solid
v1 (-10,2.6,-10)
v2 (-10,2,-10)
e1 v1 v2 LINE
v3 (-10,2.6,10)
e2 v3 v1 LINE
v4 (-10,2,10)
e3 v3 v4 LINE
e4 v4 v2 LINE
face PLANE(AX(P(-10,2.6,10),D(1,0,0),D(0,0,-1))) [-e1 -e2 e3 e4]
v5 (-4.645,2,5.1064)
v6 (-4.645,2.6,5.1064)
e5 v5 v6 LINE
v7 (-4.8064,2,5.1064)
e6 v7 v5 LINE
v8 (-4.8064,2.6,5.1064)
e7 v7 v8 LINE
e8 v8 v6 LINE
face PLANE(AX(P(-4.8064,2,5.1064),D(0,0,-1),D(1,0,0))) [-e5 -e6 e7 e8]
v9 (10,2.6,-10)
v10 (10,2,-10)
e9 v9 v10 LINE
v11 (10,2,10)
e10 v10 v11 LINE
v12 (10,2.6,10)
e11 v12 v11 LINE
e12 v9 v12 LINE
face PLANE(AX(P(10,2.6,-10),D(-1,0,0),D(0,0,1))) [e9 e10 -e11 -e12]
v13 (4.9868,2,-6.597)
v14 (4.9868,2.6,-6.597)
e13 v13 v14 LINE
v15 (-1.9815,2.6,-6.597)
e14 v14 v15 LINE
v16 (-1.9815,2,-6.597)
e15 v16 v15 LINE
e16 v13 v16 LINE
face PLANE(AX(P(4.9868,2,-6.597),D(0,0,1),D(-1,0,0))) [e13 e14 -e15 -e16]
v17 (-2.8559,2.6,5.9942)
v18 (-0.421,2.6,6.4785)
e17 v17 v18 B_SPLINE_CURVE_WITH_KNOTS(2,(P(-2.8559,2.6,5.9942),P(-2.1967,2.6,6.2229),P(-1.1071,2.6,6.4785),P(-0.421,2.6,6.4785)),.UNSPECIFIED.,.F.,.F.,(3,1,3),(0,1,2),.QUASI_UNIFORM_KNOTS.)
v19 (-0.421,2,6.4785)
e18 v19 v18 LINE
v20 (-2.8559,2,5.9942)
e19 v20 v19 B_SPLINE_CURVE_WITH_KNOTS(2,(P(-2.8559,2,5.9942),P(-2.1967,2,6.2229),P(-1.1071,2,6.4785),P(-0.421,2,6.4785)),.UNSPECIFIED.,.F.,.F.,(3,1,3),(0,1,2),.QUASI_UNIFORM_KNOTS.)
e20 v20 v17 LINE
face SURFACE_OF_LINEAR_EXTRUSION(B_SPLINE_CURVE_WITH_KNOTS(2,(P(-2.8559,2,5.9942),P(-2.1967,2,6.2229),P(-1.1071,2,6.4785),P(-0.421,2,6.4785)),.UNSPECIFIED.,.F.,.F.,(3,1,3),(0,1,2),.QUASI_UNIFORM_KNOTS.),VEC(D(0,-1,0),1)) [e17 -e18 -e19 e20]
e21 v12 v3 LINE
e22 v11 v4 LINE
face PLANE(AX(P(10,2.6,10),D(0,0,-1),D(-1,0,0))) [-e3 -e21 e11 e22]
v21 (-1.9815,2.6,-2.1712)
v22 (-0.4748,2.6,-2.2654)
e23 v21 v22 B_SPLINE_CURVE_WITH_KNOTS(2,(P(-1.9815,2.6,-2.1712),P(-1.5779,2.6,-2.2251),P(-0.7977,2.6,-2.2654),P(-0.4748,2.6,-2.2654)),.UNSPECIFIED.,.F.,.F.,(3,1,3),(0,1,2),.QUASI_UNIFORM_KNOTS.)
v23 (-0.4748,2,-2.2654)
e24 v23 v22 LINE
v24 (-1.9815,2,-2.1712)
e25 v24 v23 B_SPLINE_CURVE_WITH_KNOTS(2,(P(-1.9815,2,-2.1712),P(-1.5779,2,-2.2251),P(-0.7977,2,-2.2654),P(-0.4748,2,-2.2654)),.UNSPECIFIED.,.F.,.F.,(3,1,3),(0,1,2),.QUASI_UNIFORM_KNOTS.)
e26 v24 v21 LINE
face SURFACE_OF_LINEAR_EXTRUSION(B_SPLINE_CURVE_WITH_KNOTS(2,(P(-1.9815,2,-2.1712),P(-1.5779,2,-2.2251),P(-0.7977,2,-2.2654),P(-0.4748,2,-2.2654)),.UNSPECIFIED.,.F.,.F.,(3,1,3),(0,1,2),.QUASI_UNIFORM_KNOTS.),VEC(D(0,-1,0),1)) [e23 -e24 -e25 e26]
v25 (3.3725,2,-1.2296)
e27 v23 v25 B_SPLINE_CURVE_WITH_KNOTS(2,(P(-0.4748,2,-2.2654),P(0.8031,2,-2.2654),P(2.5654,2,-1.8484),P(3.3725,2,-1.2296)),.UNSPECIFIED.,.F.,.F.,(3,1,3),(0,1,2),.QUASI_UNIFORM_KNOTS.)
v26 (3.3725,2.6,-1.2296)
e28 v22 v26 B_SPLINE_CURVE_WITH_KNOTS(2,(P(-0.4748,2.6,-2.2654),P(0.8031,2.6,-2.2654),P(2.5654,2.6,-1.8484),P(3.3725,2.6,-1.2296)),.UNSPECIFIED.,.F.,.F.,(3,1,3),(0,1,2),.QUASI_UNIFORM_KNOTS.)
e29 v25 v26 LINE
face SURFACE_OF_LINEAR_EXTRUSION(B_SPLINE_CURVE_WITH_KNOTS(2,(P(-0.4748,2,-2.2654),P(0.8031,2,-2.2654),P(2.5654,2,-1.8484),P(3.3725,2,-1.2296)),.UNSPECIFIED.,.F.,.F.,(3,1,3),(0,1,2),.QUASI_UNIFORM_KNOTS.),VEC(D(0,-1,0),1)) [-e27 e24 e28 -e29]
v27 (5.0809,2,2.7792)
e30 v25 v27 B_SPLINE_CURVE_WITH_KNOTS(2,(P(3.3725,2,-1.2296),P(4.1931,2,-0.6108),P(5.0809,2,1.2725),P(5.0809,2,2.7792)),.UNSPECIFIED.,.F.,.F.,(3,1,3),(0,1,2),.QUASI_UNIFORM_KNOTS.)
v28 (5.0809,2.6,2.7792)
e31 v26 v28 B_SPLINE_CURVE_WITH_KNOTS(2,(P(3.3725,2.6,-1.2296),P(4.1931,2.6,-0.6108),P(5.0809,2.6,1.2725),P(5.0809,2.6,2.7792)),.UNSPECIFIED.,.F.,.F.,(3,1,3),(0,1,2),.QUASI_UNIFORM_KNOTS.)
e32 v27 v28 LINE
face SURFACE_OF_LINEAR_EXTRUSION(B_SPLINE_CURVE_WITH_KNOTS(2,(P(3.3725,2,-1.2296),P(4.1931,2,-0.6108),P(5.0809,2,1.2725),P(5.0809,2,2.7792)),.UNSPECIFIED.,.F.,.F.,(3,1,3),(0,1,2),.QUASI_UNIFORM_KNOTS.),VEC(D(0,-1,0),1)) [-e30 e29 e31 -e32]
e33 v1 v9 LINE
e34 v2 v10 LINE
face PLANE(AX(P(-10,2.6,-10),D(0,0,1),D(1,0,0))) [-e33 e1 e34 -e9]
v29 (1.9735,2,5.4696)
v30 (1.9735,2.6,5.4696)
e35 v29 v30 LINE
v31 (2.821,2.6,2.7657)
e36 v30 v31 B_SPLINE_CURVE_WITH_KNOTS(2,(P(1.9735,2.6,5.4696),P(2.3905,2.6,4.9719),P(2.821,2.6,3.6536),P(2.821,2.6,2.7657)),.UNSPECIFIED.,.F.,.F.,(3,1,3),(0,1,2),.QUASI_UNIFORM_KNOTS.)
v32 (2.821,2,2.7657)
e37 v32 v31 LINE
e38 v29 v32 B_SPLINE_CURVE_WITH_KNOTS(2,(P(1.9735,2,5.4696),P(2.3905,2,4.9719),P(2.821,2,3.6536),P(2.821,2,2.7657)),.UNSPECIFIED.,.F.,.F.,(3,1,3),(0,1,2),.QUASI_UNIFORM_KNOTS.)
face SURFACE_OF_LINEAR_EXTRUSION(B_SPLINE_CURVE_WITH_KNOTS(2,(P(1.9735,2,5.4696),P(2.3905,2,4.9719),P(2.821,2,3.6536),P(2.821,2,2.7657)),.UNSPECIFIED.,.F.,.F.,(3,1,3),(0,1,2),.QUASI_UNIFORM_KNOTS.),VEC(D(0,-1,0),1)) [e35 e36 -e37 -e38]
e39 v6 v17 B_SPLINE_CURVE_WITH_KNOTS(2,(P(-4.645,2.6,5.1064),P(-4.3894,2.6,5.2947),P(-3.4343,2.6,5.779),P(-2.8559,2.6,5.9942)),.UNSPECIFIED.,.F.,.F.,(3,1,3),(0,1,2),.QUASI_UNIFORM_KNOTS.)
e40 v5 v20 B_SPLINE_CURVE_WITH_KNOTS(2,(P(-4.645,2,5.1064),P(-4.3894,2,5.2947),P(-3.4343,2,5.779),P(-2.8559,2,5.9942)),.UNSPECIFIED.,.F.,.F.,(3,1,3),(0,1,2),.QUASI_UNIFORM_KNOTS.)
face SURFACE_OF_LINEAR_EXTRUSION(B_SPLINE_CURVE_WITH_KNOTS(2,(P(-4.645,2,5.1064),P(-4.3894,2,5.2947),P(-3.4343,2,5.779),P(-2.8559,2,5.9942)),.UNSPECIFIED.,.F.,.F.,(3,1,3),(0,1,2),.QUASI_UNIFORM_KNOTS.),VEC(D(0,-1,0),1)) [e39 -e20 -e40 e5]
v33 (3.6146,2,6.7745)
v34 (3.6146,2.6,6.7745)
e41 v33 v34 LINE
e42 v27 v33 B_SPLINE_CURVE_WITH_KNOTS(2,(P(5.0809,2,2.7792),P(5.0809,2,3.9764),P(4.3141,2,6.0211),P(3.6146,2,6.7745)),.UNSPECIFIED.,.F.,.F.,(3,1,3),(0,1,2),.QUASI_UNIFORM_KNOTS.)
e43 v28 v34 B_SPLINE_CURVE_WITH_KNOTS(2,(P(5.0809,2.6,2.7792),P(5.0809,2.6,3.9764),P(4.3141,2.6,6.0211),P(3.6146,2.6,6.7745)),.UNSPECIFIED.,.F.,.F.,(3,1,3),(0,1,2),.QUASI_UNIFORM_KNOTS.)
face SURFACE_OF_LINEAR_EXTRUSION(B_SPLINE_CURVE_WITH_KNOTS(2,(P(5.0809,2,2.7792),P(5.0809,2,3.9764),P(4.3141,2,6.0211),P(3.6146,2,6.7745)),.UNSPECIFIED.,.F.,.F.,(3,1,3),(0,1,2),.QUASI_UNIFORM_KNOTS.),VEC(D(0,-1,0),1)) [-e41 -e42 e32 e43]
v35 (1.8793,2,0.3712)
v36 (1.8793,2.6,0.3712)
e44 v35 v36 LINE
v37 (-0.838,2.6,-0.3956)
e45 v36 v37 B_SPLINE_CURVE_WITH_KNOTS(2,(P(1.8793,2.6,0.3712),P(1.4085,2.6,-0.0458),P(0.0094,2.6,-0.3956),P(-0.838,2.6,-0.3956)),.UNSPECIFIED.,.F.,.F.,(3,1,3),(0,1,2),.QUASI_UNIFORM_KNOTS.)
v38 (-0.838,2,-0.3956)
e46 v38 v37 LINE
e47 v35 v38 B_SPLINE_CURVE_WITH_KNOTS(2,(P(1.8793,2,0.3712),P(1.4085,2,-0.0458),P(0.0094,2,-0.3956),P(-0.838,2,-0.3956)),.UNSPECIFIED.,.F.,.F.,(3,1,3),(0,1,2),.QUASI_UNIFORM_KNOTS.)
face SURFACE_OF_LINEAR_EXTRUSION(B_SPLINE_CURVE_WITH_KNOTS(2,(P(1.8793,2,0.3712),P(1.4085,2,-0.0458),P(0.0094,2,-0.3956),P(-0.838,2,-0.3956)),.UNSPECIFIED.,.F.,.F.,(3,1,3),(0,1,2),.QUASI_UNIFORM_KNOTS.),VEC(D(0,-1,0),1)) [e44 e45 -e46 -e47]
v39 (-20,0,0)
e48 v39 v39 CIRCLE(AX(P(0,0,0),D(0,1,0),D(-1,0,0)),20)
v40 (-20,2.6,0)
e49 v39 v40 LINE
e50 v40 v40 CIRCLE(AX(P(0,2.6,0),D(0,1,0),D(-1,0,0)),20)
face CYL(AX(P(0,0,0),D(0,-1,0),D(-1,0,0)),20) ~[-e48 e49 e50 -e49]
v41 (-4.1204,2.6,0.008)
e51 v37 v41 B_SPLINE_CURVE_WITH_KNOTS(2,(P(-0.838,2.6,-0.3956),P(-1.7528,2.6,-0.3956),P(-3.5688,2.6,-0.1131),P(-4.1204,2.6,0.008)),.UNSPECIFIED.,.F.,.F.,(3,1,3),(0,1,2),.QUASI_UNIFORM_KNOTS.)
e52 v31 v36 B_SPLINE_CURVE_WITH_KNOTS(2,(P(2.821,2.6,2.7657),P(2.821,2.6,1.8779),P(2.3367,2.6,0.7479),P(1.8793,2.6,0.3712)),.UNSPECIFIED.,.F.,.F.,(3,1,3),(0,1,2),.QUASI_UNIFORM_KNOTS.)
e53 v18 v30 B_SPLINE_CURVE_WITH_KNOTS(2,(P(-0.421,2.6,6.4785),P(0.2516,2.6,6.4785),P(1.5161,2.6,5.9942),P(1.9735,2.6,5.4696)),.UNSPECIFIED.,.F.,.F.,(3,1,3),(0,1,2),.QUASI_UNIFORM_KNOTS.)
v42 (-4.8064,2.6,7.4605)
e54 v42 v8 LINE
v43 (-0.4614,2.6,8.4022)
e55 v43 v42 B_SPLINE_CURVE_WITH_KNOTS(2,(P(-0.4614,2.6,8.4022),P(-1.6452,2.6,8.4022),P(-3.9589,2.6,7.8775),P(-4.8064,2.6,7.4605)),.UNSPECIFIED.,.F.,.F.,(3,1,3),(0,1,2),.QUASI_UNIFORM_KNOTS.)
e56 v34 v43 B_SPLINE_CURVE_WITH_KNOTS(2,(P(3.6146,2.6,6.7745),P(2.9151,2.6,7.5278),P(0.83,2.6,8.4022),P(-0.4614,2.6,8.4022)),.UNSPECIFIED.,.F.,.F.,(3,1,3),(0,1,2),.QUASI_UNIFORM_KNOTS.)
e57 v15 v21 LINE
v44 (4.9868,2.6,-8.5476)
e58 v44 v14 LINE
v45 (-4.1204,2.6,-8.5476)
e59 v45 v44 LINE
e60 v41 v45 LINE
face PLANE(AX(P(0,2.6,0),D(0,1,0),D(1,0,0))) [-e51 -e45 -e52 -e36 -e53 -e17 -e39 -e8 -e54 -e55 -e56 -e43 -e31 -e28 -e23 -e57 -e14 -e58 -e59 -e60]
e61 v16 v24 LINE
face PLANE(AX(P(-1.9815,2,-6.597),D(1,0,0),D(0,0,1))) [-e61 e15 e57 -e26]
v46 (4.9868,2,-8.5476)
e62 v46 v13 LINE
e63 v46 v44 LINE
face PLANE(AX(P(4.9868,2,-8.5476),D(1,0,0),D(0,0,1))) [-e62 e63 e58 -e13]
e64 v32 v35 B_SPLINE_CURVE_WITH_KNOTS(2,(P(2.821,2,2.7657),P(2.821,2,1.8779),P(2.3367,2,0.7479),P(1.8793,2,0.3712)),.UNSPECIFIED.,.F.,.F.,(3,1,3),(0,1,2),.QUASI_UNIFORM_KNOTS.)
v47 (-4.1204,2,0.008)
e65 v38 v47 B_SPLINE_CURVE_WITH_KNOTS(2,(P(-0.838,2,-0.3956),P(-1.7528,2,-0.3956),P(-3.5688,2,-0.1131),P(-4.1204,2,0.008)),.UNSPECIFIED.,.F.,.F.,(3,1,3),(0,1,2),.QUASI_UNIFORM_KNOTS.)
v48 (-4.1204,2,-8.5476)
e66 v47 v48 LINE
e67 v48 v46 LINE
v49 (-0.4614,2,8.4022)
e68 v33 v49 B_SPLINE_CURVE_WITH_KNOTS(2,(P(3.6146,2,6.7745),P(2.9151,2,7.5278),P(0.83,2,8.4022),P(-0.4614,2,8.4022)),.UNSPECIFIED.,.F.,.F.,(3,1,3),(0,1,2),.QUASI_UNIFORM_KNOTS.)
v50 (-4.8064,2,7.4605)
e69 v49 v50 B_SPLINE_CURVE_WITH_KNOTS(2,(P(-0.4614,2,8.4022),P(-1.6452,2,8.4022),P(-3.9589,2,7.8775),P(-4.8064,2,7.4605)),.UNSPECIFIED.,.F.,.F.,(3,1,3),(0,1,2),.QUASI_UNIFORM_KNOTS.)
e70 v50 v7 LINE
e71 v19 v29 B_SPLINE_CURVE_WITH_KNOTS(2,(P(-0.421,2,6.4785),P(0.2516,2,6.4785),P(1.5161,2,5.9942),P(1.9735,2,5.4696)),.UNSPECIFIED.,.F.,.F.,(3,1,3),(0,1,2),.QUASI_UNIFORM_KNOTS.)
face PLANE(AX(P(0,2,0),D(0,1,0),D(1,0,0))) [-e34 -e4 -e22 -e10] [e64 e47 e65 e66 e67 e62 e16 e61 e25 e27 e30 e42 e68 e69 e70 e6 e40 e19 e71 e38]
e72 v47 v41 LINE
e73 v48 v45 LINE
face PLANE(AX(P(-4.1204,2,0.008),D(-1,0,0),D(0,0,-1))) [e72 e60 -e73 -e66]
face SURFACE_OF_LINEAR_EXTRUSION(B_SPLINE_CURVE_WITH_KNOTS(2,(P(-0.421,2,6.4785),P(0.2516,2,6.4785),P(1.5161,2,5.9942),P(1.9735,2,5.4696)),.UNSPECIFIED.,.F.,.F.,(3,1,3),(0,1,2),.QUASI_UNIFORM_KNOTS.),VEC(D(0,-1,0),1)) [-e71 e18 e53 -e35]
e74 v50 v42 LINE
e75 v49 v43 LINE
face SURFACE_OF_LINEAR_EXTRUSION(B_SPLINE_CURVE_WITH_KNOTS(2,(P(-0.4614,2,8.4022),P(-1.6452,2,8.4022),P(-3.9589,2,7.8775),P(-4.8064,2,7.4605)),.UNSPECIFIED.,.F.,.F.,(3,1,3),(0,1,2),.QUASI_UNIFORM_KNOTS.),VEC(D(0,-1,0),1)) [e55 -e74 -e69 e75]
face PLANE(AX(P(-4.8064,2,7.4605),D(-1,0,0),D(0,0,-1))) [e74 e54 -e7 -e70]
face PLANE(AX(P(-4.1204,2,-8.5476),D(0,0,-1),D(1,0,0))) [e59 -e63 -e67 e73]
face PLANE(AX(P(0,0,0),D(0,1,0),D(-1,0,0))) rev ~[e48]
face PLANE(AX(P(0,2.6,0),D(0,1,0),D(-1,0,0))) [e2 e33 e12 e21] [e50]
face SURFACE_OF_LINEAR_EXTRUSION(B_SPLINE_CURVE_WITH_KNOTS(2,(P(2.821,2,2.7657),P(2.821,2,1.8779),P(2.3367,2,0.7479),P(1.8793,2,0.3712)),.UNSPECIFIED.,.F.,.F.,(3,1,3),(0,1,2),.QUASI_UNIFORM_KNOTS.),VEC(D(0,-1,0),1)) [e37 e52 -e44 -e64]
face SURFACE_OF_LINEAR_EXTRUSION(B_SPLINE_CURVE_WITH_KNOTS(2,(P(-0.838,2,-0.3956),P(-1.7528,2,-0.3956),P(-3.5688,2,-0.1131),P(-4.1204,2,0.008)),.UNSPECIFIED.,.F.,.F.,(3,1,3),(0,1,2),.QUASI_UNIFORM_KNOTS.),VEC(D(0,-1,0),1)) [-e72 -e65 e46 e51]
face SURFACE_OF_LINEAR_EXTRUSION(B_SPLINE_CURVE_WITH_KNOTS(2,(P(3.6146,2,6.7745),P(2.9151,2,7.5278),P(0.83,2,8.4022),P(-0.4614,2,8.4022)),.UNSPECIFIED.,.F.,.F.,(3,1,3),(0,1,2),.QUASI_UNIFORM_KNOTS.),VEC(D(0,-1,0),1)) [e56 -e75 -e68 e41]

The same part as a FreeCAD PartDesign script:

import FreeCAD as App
import Part
import Sketcher


def add_polygon(sketch, points):
    """Adds a closed chain of lines whose ends are joined by coincident constraints."""
    first, n = sketch.GeometryCount, len(points)
    for a, b in zip(points, points[1:] + points[:1]):
        sketch.addGeometry(Part.LineSegment(App.Vector(*a, 0), App.Vector(*b, 0)), False)
    for i in range(n):
        sketch.addConstraint(Sketcher.Constraint("Coincident", first + i, 2, first + (i + 1) % n, 1))

doc = App.newDocument("Part")
body = doc.addObject("PartDesign::Body", "Body")

# Sketch on XZ plane
sketch1 = body.newObject("Sketcher::SketchObject", "Sketch")
sketch1.AttachmentSupport = (doc.getObject("XZ_Plane"), [""])
sketch1.MapMode = "FlatFace"
sketch1.addGeometry(Part.Circle(App.Vector(0, 0, 0), App.Vector(0, 0, 1), 20), False)
sketch1.addConstraint(Sketcher.Constraint("Coincident", 0, 3, -1, 1))
sketch1.addConstraint(Sketcher.Constraint("Diameter", 0, 40.0))
pad1 = body.newObject("PartDesign::Pad", "Pad")
pad1.Profile = sketch1
pad1.Length = 2.6
pad1.Reversed = True

# Sketch on XZ plane
sketch2 = body.newObject("Sketcher::SketchObject", "Sketch001")
sketch2.AttachmentSupport = (doc.getObject("XZ_Plane"), [""])
sketch2.MapMode = "FlatFace"
sketch2.AttachmentOffset = App.Placement(App.Vector(0, 0, -2.6), App.Rotation())
add_polygon(sketch2, [(-10, 10), (10, 10), (10, -10), (-10, -10)])  # lines 0-3
sketch2.addConstraint(Sketcher.Constraint("Horizontal", 0))
sketch2.addConstraint(Sketcher.Constraint("Vertical", 1))
sketch2.addConstraint(Sketcher.Constraint("Horizontal", 2))
sketch2.addConstraint(Sketcher.Constraint("Vertical", 3))
sketch2.addConstraint(Sketcher.Constraint("Symmetric", 0, 2, 2, 2, -1, 1))
sketch2.addConstraint(Sketcher.Constraint("Equal", 2, 1))
sketch2.addConstraint(Sketcher.Constraint("DistanceX", 0, 1, 0, 2, 20.0))
pocket1 = body.newObject("PartDesign::Pocket", "Pocket")
pocket1.Profile = sketch2
pocket1.Length = 0.6
pocket1.Reversed = True

# Sketch on XZ plane
sketch3 = body.newObject("Sketcher::SketchObject", "Sketch002")
sketch3.AttachmentSupport = (doc.getObject("XZ_Plane"), [""])
sketch3.MapMode = "FlatFace"
sketch3.AttachmentOffset = App.Placement(App.Vector(0, 0, -2), App.Rotation())
sketch3.addGeometry(Part.BSplineCurve([App.Vector(5.0809, 2.7792, 0), App.Vector(5.0809, 3.9764, 0), App.Vector(4.3141, 6.0211, 0), App.Vector(3.6146, 6.7745, 0)], [3, 1, 3], [0, 1, 2], False, 2, [1, 1, 1, 1], False), False)
sketch3.addGeometry(Part.BSplineCurve([App.Vector(3.3725, -1.2296, 0), App.Vector(4.1931, -0.6108, 0), App.Vector(5.0809, 1.2725, 0), App.Vector(5.0809, 2.7792, 0)], [3, 1, 3], [0, 1, 2], False, 2, [1, 1, 1, 1], False), False)
sketch3.addGeometry(Part.BSplineCurve([App.Vector(-0.4748, -2.2654, 0), App.Vector(0.8031, -2.2654, 0), App.Vector(2.5654, -1.8484, 0), App.Vector(3.3725, -1.2296, 0)], [3, 1, 3], [0, 1, 2], False, 2, [1, 1, 1, 1], False), False)
sketch3.addGeometry(Part.BSplineCurve([App.Vector(-1.9815, -2.1712, 0), App.Vector(-1.5779, -2.2251, 0), App.Vector(-0.7977, -2.2654, 0), App.Vector(-0.4748, -2.2654, 0)], [3, 1, 3], [0, 1, 2], False, 2, [1, 1, 1, 1], False), False)
sketch3.addGeometry(Part.LineSegment(App.Vector(-1.9815, -2.1712, 0), App.Vector(-1.9815, -6.597, 0)), False)
sketch3.addGeometry(Part.LineSegment(App.Vector(-1.9815, -6.597, 0), App.Vector(4.9868, -6.597, 0)), False)
sketch3.addGeometry(Part.LineSegment(App.Vector(4.9868, -6.597, 0), App.Vector(4.9868, -8.5476, 0)), False)
sketch3.addGeometry(Part.LineSegment(App.Vector(4.9868, -8.5476, 0), App.Vector(-4.1204, -8.5476, 0)), False)
sketch3.addGeometry(Part.LineSegment(App.Vector(-4.1204, -8.5476, 0), App.Vector(-4.1204, 0.008, 0)), False)
sketch3.addGeometry(Part.BSplineCurve([App.Vector(-0.838, -0.3956, 0), App.Vector(-1.7528, -0.3956, 0), App.Vector(-3.5688, -0.1131, 0), App.Vector(-4.1204, 0.008, 0)], [3, 1, 3], [0, 1, 2], False, 2, [1, 1, 1, 1], False), False)
sketch3.addGeometry(Part.BSplineCurve([App.Vector(1.8793, 0.3712, 0), App.Vector(1.4085, -0.0458, 0), App.Vector(0.0094, -0.3956, 0), App.Vector(-0.838, -0.3956, 0)], [3, 1, 3], [0, 1, 2], False, 2, [1, 1, 1, 1], False), False)
sketch3.addGeometry(Part.BSplineCurve([App.Vector(2.821, 2.7657, 0), App.Vector(2.821, 1.8779, 0), App.Vector(2.3367, 0.7479, 0), App.Vector(1.8793, 0.3712, 0)], [3, 1, 3], [0, 1, 2], False, 2, [1, 1, 1, 1], False), False)
sketch3.addGeometry(Part.BSplineCurve([App.Vector(1.9735, 5.4696, 0), App.Vector(2.3905, 4.9719, 0), App.Vector(2.821, 3.6536, 0), App.Vector(2.821, 2.7657, 0)], [3, 1, 3], [0, 1, 2], False, 2, [1, 1, 1, 1], False), False)
sketch3.addGeometry(Part.BSplineCurve([App.Vector(-0.421, 6.4785, 0), App.Vector(0.2516, 6.4785, 0), App.Vector(1.5161, 5.9942, 0), App.Vector(1.9735, 5.4696, 0)], [3, 1, 3], [0, 1, 2], False, 2, [1, 1, 1, 1], False), False)
sketch3.addGeometry(Part.BSplineCurve([App.Vector(-2.8559, 5.9942, 0), App.Vector(-2.1967, 6.2229, 0), App.Vector(-1.1071, 6.4785, 0), App.Vector(-0.421, 6.4785, 0)], [3, 1, 3], [0, 1, 2], False, 2, [1, 1, 1, 1], False), False)
sketch3.addGeometry(Part.BSplineCurve([App.Vector(-4.645, 5.1064, 0), App.Vector(-4.3894, 5.2947, 0), App.Vector(-3.4343, 5.779, 0), App.Vector(-2.8559, 5.9942, 0)], [3, 1, 3], [0, 1, 2], False, 2, [1, 1, 1, 1], False), False)
sketch3.addGeometry(Part.LineSegment(App.Vector(-4.645, 5.1064, 0), App.Vector(-4.8064, 5.1064, 0)), False)
sketch3.addGeometry(Part.LineSegment(App.Vector(-4.8064, 5.1064, 0), App.Vector(-4.8064, 7.4605, 0)), False)
sketch3.addGeometry(Part.BSplineCurve([App.Vector(-0.4614, 8.4022, 0), App.Vector(-1.6452, 8.4022, 0), App.Vector(-3.9589, 7.8775, 0), App.Vector(-4.8064, 7.4605, 0)], [3, 1, 3], [0, 1, 2], False, 2, [1, 1, 1, 1], False), False)
sketch3.addGeometry(Part.BSplineCurve([App.Vector(3.6146, 6.7745, 0), App.Vector(2.9151, 7.5278, 0), App.Vector(0.83, 8.4022, 0), App.Vector(-0.4614, 8.4022, 0)], [3, 1, 3], [0, 1, 2], False, 2, [1, 1, 1, 1], False), False)
sketch3.addConstraint(Sketcher.Constraint("Block", 0))
sketch3.addConstraint(Sketcher.Constraint("Block", 1))
sketch3.addConstraint(Sketcher.Constraint("Block", 2))
sketch3.addConstraint(Sketcher.Constraint("Block", 3))
sketch3.addConstraint(Sketcher.Constraint("Block", 9))
sketch3.addConstraint(Sketcher.Constraint("Block", 10))
sketch3.addConstraint(Sketcher.Constraint("Block", 11))
sketch3.addConstraint(Sketcher.Constraint("Block", 12))
sketch3.addConstraint(Sketcher.Constraint("Block", 13))
sketch3.addConstraint(Sketcher.Constraint("Block", 14))
sketch3.addConstraint(Sketcher.Constraint("Block", 15))
sketch3.addConstraint(Sketcher.Constraint("Block", 18))
sketch3.addConstraint(Sketcher.Constraint("Block", 19))
sketch3.addConstraint(Sketcher.Constraint("Coincident", 3, 1, 4, 1))
sketch3.addConstraint(Sketcher.Constraint("Coincident", 4, 2, 5, 1))
sketch3.addConstraint(Sketcher.Constraint("Coincident", 5, 2, 6, 1))
sketch3.addConstraint(Sketcher.Constraint("Coincident", 6, 2, 7, 1))
sketch3.addConstraint(Sketcher.Constraint("Coincident", 7, 2, 8, 1))
sketch3.addConstraint(Sketcher.Constraint("Coincident", 8, 2, 9, 2))
sketch3.addConstraint(Sketcher.Constraint("Coincident", 15, 1, 16, 1))
sketch3.addConstraint(Sketcher.Constraint("Coincident", 16, 2, 17, 1))
sketch3.addConstraint(Sketcher.Constraint("Coincident", 17, 2, 18, 2))
sketch3.addConstraint(Sketcher.Constraint("Vertical", 4))
sketch3.addConstraint(Sketcher.Constraint("Horizontal", 5))
sketch3.addConstraint(Sketcher.Constraint("Vertical", 6))
sketch3.addConstraint(Sketcher.Constraint("Horizontal", 7))
sketch3.addConstraint(Sketcher.Constraint("Vertical", 8))
sketch3.addConstraint(Sketcher.Constraint("Horizontal", 16))
sketch3.addConstraint(Sketcher.Constraint("Vertical", 17))
sketch3.addConstraint(Sketcher.Constraint("DistanceX", 5, 1, 5, 2, 6.9683))
sketch3.addConstraint(Sketcher.Constraint("DistanceY", 4, 2, 4, 1, 4.4258))
sketch3.addConstraint(Sketcher.Constraint("DistanceY", 6, 2, 6, 1, 1.9506))
pad2 = body.newObject("PartDesign::Pad", "Pad001")
pad2.Profile = sketch3
pad2.Length = 0.6
pad2.Reversed = True

doc.recompute()
